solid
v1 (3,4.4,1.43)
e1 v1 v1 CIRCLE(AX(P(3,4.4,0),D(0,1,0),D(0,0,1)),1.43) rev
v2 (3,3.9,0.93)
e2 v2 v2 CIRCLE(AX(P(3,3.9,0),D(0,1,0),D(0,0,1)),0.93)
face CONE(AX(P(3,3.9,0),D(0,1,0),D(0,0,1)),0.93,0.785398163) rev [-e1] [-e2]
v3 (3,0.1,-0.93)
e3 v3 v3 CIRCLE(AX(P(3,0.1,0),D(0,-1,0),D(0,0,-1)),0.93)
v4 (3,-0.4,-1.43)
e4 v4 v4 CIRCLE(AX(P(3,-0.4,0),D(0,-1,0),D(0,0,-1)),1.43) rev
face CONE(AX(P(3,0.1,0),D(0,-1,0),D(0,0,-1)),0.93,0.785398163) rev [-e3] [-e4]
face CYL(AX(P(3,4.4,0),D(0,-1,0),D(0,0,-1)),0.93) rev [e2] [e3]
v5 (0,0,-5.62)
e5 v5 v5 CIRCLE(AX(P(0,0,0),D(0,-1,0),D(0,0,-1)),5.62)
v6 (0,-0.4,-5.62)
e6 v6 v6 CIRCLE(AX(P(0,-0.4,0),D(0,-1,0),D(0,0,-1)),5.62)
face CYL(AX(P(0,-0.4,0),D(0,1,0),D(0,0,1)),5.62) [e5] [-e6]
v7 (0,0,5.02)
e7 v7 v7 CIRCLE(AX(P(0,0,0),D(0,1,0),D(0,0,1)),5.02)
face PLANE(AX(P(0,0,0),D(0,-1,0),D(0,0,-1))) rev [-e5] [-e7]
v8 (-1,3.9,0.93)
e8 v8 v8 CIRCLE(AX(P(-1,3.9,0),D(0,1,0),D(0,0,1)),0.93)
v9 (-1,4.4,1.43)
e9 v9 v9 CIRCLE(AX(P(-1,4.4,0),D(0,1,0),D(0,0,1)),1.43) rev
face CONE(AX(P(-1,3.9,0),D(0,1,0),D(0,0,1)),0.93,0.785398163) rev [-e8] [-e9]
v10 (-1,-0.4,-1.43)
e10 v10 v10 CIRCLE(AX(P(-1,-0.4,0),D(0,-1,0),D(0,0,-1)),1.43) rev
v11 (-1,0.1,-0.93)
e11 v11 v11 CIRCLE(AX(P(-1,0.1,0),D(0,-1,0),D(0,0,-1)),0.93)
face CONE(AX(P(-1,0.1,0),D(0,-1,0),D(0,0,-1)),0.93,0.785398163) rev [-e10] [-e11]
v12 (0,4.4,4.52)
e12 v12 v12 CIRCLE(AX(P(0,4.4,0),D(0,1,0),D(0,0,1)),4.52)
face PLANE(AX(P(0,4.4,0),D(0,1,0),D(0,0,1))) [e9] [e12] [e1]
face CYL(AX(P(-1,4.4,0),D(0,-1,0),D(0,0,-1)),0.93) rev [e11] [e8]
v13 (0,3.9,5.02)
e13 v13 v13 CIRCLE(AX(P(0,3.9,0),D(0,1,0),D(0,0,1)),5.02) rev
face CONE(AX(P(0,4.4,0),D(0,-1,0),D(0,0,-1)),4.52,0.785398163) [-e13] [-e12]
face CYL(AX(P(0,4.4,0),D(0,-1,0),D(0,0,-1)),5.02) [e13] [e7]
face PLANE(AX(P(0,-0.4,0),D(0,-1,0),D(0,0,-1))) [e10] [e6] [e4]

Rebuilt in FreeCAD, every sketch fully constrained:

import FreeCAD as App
import Part
import Sketcher

V = App.Vector
Q = App.Units.Quantity


def edges_at(feature, points):
    """Names of the edges that pass closest to the given points."""
    edges = feature.Shape.Edges
    near = lambda p: min(range(len(edges)), key=lambda i: edges[i].distToShape(Part.Vertex(*p))[0])
    return sorted({f"Edge{near(p) + 1}" for p in points})

doc = App.newDocument("Part")
body = doc.addObject("PartDesign::Body", "Body")

# Sketch on XZ plane
sketch1 = body.newObject("Sketcher::SketchObject", "Sketch")
sketch1.AttachmentSupport = (doc.getObject("XZ_Plane"), [""])
sketch1.MapMode = "FlatFace"
sketch1.addGeometry([
    Part.Circle(V(0, 0, 0), V(0, 0, 1), 5),
    Part.Circle(V(-1, 0, 0), V(0, 0, 1), 0.9),
    Part.Circle(V(3, 0, 0), V(0, 0, 1), 0.9),
], False)
sketch1.addConstraint([
    Sketcher.Constraint("Coincident", 0, 3, -1, 1),
    Sketcher.Constraint("Equal", 1, 2),
    Sketcher.Constraint("PointOnObject", 1, 3, -1),
    Sketcher.Constraint("PointOnObject", 2, 3, -1),
    Sketcher.Constraint("Diameter", 0, Q("10.04 mm")),
    Sketcher.Constraint("Diameter", 1, Q("1.86 mm")),
    Sketcher.Constraint("DistanceX", 1, 3, -1, 1, Q("1 mm")),
    Sketcher.Constraint("DistanceX", -1, 1, 2, 3, Q("3 mm")),
])
pad1 = body.newObject("PartDesign::Pad", "Pad")
pad1.Profile = sketch1
pad1.Length = 4.4
pad1.Reversed = True

# Sketch on XZ plane
sketch2 = body.newObject("Sketcher::SketchObject", "Sketch001")
sketch2.AttachmentSupport = (doc.getObject("XZ_Plane"), [""])
sketch2.MapMode = "FlatFace"
sketch2.AttachmentOffset = App.Placement(V(0, 0, 0.4), App.Rotation())
sketch2.addGeometry([
    Part.Circle(V(0, 0, 0), V(0, 0, 1), 5.6),
    Part.Circle(V(-1, 0, 0), V(0, 0, 1), 0.9),
    Part.Circle(V(3, 0, 0), V(0, 0, 1), 0.9),
], False)
sketch2.addConstraint([
    Sketcher.Constraint("Coincident", 0, 3, -1, 1),
    Sketcher.Constraint("Equal", 1, 2),
    Sketcher.Constraint("PointOnObject", 1, 3, -1),
    Sketcher.Constraint("PointOnObject", 2, 3, -1),
    Sketcher.Constraint("Diameter", 0, Q("11.24 mm")),
    Sketcher.Constraint("Diameter", 1, Q("1.86 mm")),
    Sketcher.Constraint("DistanceX", 1, 3, -1, 1, Q("1 mm")),
    Sketcher.Constraint("DistanceX", -1, 1, 2, 3, Q("3 mm")),
])
pad2 = body.newObject("PartDesign::Pad", "Pad001")
pad2.Profile = sketch2
pad2.Length = 0.4
pad2.Reversed = True
doc.recompute()

chamfer = body.newObject("PartDesign::Chamfer", "Chamfer")
chamfer.Base = (pad2, edges_at(pad2, [
    (3, -0.4, 0.93),
    (-1, -0.4, 0.93),
    (0, 4.4, -5.02),
    (3, 4.4, -0.93),
    (-1, 4.4, 0.93),
]))
chamfer.Size = 0.5

doc.recompute()
